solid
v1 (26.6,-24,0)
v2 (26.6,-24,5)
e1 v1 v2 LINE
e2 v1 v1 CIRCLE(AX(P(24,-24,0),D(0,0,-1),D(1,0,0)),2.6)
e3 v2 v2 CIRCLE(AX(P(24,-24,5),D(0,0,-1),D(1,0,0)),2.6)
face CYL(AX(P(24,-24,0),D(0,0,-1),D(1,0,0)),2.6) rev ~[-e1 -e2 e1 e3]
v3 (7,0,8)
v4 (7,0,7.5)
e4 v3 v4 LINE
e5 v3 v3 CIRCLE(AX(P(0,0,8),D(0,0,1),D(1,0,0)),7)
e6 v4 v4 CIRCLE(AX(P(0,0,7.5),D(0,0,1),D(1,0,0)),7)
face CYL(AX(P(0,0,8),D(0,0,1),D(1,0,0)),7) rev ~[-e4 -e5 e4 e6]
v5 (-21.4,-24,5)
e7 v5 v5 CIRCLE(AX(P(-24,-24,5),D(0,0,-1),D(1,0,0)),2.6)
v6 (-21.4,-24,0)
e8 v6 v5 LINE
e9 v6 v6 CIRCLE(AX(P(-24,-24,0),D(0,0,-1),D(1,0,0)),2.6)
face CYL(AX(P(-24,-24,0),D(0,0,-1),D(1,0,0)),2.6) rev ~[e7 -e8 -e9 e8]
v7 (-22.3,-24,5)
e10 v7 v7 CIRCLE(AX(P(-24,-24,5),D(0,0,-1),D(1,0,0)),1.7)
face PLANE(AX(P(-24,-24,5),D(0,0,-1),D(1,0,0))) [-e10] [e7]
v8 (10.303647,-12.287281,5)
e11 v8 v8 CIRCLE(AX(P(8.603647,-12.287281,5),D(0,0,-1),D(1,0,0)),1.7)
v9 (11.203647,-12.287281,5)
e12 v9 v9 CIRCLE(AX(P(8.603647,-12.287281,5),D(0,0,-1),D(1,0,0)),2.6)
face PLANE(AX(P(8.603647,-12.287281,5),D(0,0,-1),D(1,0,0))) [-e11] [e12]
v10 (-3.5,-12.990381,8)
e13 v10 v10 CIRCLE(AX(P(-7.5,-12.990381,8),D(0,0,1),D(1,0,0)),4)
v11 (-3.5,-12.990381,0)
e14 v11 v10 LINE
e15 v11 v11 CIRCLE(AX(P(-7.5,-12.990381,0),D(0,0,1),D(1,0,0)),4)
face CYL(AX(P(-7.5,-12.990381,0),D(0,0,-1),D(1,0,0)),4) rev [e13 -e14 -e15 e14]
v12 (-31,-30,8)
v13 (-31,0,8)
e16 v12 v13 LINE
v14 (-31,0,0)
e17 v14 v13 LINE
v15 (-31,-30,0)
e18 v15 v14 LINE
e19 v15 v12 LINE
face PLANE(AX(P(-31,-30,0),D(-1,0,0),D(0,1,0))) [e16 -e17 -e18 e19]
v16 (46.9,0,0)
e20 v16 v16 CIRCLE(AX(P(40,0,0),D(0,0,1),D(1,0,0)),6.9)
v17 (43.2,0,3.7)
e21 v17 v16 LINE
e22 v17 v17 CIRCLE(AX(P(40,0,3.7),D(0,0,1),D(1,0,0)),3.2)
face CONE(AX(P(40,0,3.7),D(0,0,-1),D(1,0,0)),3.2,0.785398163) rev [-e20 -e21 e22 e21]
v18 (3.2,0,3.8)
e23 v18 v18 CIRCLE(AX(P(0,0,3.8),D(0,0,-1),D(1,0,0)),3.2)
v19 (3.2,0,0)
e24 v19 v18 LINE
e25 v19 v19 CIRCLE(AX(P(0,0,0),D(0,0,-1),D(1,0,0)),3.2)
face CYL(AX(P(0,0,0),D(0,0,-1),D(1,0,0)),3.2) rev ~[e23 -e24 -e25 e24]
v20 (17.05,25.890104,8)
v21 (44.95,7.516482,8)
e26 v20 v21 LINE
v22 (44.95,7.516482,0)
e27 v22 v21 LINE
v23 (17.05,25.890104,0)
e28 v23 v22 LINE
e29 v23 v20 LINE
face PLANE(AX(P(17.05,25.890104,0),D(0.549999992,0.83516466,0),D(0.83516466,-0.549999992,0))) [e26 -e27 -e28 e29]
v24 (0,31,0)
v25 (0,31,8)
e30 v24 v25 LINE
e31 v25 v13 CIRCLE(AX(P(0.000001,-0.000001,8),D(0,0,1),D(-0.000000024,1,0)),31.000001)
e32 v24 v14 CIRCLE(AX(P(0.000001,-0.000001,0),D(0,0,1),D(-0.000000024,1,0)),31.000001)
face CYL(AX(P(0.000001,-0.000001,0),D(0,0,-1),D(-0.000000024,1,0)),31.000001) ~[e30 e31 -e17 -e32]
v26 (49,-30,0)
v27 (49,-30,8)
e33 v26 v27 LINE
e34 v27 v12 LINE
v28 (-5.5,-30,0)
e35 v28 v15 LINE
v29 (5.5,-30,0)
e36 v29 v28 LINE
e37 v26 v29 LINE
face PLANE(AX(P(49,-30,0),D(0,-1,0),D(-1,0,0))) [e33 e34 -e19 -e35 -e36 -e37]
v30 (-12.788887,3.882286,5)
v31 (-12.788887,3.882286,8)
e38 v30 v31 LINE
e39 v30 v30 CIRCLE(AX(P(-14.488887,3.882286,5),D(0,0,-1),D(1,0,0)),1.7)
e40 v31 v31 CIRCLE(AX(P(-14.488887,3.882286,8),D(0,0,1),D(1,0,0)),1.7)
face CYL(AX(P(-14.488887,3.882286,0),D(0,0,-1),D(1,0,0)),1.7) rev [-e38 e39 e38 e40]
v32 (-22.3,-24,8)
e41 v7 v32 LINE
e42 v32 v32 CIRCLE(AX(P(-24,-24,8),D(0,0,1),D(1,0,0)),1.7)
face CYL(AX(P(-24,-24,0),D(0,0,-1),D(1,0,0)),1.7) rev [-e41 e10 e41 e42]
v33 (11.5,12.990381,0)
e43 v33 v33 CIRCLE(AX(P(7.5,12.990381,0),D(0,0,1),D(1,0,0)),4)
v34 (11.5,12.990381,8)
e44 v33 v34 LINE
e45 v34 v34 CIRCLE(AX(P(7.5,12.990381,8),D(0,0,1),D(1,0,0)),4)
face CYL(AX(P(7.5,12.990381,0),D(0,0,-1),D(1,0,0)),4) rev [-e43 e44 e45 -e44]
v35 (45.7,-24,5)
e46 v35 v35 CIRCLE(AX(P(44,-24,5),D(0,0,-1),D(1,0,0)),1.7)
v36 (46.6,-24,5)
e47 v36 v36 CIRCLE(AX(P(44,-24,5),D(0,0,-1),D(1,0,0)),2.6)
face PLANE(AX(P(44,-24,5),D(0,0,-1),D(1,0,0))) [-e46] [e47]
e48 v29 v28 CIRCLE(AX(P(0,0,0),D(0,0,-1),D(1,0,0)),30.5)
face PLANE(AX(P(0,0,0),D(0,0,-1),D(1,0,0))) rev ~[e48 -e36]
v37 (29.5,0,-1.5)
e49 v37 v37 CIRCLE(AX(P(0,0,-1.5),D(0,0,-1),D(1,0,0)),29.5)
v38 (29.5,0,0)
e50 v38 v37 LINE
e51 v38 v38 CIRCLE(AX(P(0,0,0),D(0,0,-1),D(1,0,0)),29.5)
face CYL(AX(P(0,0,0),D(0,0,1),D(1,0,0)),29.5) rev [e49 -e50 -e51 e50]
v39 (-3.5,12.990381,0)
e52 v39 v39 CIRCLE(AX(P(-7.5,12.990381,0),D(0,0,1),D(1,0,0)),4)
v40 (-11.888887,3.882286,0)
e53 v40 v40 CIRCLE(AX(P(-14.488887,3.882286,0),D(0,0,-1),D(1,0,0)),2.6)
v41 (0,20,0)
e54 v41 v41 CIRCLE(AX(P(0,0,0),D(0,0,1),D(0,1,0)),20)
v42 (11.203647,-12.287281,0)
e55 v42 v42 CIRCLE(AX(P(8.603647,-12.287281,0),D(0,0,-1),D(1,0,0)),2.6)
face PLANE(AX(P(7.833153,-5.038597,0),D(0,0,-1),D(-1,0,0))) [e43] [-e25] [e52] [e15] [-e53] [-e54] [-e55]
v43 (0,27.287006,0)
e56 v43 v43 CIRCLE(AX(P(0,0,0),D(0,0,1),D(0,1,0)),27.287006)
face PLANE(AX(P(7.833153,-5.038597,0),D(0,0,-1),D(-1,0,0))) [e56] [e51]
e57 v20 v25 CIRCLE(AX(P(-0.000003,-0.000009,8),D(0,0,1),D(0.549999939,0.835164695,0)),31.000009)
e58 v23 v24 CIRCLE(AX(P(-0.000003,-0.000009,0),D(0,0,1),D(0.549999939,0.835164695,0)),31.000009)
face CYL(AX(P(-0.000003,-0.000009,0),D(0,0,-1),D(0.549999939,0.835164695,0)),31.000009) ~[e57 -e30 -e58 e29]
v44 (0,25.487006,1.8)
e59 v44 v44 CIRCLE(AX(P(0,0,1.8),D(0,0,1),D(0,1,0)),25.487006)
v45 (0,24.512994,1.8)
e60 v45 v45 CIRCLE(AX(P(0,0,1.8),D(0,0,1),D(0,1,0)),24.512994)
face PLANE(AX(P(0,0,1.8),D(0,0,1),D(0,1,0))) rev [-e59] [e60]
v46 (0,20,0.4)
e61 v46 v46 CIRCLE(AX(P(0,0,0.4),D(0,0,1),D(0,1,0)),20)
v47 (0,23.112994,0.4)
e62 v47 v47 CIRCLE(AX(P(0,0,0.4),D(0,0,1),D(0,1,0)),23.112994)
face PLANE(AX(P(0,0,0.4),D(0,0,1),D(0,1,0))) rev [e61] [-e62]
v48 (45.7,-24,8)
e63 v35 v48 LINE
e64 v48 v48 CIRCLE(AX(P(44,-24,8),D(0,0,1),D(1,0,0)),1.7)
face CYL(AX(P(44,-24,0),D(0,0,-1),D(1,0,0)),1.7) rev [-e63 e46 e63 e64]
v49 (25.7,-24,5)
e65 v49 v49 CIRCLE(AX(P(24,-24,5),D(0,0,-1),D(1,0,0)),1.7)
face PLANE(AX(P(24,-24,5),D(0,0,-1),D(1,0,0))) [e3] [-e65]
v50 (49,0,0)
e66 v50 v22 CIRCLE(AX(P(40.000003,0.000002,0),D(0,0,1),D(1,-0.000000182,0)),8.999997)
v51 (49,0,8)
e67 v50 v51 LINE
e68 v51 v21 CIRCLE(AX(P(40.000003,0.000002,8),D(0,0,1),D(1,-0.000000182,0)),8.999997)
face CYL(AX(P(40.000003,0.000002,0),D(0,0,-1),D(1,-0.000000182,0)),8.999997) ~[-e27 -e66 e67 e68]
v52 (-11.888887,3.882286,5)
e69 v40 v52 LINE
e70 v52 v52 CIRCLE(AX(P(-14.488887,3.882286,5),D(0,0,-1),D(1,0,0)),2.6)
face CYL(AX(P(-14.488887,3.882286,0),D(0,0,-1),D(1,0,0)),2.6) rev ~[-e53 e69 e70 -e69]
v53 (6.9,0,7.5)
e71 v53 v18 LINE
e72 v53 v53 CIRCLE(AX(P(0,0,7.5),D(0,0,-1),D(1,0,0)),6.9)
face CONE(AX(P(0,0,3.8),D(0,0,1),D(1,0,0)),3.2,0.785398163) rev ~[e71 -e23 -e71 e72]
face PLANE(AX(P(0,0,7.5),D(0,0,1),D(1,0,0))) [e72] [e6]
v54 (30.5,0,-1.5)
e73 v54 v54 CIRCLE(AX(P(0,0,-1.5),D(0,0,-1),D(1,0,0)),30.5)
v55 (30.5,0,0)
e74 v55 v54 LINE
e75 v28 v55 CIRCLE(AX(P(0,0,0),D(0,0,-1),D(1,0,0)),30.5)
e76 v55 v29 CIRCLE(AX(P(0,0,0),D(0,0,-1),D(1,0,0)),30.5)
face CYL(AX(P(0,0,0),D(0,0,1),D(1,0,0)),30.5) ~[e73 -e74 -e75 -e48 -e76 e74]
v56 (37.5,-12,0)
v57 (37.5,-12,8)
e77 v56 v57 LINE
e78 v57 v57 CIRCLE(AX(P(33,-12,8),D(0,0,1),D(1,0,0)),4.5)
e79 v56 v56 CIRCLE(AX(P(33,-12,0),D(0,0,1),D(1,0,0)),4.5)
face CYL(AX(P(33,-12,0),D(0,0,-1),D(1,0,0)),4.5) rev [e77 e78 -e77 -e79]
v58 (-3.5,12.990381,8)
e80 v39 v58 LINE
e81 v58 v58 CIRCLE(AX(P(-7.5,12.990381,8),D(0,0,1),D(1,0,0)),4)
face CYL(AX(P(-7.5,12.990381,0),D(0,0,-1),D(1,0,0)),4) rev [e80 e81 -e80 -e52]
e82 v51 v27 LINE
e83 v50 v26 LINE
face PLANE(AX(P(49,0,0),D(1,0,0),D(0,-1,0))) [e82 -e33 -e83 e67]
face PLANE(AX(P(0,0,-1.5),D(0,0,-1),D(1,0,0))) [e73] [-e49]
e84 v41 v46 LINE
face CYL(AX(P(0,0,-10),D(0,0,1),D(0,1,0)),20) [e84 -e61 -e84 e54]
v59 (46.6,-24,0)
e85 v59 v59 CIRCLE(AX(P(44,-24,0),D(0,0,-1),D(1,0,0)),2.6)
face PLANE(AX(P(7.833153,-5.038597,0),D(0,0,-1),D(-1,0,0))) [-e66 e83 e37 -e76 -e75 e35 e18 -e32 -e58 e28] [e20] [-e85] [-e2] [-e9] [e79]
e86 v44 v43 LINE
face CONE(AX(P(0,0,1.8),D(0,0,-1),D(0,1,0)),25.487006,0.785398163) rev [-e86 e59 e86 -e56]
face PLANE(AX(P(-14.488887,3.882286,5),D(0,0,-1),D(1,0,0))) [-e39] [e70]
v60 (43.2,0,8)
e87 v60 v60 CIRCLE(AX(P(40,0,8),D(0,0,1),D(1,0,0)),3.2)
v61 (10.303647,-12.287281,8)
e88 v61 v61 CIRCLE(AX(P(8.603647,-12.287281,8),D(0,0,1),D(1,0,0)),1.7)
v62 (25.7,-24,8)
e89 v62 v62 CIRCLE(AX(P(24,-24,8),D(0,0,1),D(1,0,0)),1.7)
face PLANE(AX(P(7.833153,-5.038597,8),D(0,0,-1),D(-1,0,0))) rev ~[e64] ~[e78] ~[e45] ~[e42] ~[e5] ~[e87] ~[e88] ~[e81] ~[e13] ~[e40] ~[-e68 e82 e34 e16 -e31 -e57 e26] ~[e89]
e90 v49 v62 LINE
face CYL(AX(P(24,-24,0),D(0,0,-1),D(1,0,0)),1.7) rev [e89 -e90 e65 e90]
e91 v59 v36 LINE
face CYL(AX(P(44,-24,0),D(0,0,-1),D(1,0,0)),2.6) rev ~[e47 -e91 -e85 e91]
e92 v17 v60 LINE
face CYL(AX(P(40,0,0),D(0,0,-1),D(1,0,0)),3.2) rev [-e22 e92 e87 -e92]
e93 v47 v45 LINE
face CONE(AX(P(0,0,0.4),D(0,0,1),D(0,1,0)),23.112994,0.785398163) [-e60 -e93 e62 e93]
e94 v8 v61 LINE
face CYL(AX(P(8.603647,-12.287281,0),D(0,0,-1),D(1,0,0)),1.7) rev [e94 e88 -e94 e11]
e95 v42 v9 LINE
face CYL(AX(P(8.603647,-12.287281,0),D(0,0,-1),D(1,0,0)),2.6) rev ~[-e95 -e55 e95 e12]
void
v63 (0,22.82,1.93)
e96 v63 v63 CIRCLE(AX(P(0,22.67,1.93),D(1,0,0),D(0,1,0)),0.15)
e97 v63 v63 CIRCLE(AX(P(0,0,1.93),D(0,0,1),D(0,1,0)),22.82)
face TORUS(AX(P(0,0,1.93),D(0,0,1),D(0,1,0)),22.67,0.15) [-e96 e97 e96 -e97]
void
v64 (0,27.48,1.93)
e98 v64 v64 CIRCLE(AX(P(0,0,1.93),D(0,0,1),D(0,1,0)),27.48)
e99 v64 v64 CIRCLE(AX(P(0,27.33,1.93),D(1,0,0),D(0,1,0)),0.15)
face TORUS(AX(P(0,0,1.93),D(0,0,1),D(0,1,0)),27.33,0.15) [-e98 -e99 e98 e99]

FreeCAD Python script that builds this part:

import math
import FreeCAD as App
import Part
import Sketcher

V = App.Vector
Q = App.Units.Quantity


def edges_at(feature, points):
    """Names of the edges that pass closest to the given points."""
    edges = feature.Shape.Edges
    near = lambda p: min(range(len(edges)), key=lambda i: edges[i].distToShape(Part.Vertex(*p))[0])
    return sorted({f"Edge{near(p) + 1}" for p in points})

doc = App.newDocument("Part")
body = doc.addObject("PartDesign::Body", "Body")

sketch1 = body.newObject("Sketcher::SketchObject", "Sketch")
sketch1.AttachmentSupport = (doc.getObject("XY_Plane"), [""])
sketch1.MapMode = "FlatFace"
sketch1.addGeometry(Part.LineSegment(V(-31, -30, 0), V(49, -30, 0)), False)
sketch1.addGeometry(Part.LineSegment(V(49, -30, 0), V(49, 0, 0)), False)
sketch1.addGeometry(Part.ArcOfCircle(Part.Circle(V(40, 0, 0), V(0, 0, 1), 9), math.radians(0), math.radians(57)), False)
sketch1.addGeometry(Part.LineSegment(V(45, 7.5, 0), V(17.1, 25.9, 0)), False)
sketch1.addGeometry(Part.ArcOfCircle(Part.Circle(V(0, 0, 0), V(0, 0, 1), 31), math.radians(57), math.radians(90)), False)
sketch1.addGeometry(Part.ArcOfCircle(Part.Circle(V(0, 0, 0), V(0, 0, 1), 31), math.radians(90), math.radians(180)), False)
sketch1.addGeometry(Part.LineSegment(V(-31, 0, 0), V(-31, -30, 0)), False)
sketch1.addGeometry(Part.Circle(V(44, -24, 0), V(0, 0, 1), 1.7), False)
sketch1.addGeometry(Part.Circle(V(24, -24, 0), V(0, 0, 1), 1.7), False)
sketch1.addGeometry(Part.Circle(V(33, -12, 0), V(0, 0, 1), 4.5), False)
sketch1.addGeometry(Part.Circle(V(-24, -24, 0), V(0, 0, 1), 1.7), False)
sketch1.addGeometry(Part.Circle(V(8.6, -12.3, 0), V(0, 0, 1), 1.7), False)
sketch1.addGeometry(Part.Circle(V(-7.5, -13, 0), V(0, 0, 1), 4), False)
sketch1.addGeometry(Part.Circle(V(40, 0, 0), V(0, 0, 1), 3.2), False)
sketch1.addGeometry(Part.LineSegment(V(0, -2, 0), V(0, 2, 0)), False)
sketch1.addGeometry(Part.LineSegment(V(0, 2, 0), V(1.5, 2, 0)), False)
sketch1.addGeometry(Part.LineSegment(V(1.5, 2, 0), V(1.5, -2, 0)), False)
sketch1.addGeometry(Part.LineSegment(V(1.5, -2, 0), V(0, -2, 0)), False)
sketch1.addGeometry(Part.Circle(V(-14.5, 3.9, 0), V(0, 0, 1), 1.7), False)
sketch1.addGeometry(Part.Circle(V(7.5, 13, 0), V(0, 0, 1), 4), False)
sketch1.addGeometry(Part.Circle(V(-7.5, 13, 0), V(0, 0, 1), 4), False)
sketch1.addConstraint(Sketcher.Constraint("Coincident", 0, 2, 1, 1))
sketch1.addConstraint(Sketcher.Constraint("Tangent", 1, 2, 2, 1))
sketch1.addConstraint(Sketcher.Constraint("Tangent", 2, 2, 3, 1))
sketch1.addConstraint(Sketcher.Constraint("Tangent", 3, 2, 4, 1))
sketch1.addConstraint(Sketcher.Constraint("Tangent", 4, 2, 5, 1))
sketch1.addConstraint(Sketcher.Constraint("Tangent", 5, 2, 6, 1))
sketch1.addConstraint(Sketcher.Constraint("Coincident", 6, 2, 0, 1))
sketch1.addConstraint(Sketcher.Constraint("Coincident", 14, 2, 15, 1))
sketch1.addConstraint(Sketcher.Constraint("Coincident", 15, 2, 16, 1))
sketch1.addConstraint(Sketcher.Constraint("Coincident", 16, 2, 17, 1))
sketch1.addConstraint(Sketcher.Constraint("Coincident", 17, 2, 14, 1))
sketch1.addConstraint(Sketcher.Constraint("Horizontal", 0))
sketch1.addConstraint(Sketcher.Constraint("Vertical", 1))
sketch1.addConstraint(Sketcher.Constraint("Vertical", 6))
sketch1.addConstraint(Sketcher.Constraint("Vertical", 14))
sketch1.addConstraint(Sketcher.Constraint("Horizontal", 15))
sketch1.addConstraint(Sketcher.Constraint("Vertical", 16))
sketch1.addConstraint(Sketcher.Constraint("Horizontal", 17))
sketch1.addConstraint(Sketcher.Constraint("Coincident", 4, 3, -1, 1))
sketch1.addConstraint(Sketcher.Constraint("Coincident", 13, 3, 2, 3))
sketch1.addConstraint(Sketcher.Constraint("Equal", 7, 8))
sketch1.addConstraint(Sketcher.Constraint("Equal", 8, 10))
sketch1.addConstraint(Sketcher.Constraint("Equal", 10, 11))
sketch1.addConstraint(Sketcher.Constraint("Equal", 11, 18))
sketch1.addConstraint(Sketcher.Constraint("Equal", 12, 19))
sketch1.addConstraint(Sketcher.Constraint("Equal", 19, 20))
sketch1.addConstraint(Sketcher.Constraint("Symmetric", 12, 3, 19, 3, -1, 1))
sketch1.addConstraint(Sketcher.Constraint("Symmetric", 14, 2, 17, 2, -1, 1))
sketch1.addConstraint(Sketcher.Constraint("Symmetric", 8, 3, 10, 3, -2))
sketch1.addConstraint(Sketcher.Constraint("Symmetric", 19, 3, 20, 3, -2))
sketch1.addConstraint(Sketcher.Constraint("PointOnObject", 2, 3, -1))
sketch1.addConstraint(Sketcher.Constraint("PointOnObject", 4, 2, -2))
sketch1.addConstraint(Sketcher.Constraint("PointOnObject", 5, 2, -1))
sketch1.addConstraint(Sketcher.Constraint("Horizontal", 7, 3, 8, 3))
sketch1.addConstraint(Sketcher.Constraint("Diameter", 9, 9.0))
sketch1.addConstraint(Sketcher.Constraint("Diameter", 12, 8.0))
sketch1.addConstraint(Sketcher.Constraint("Radius", 5, 31.000001))
sketch1.addConstraint(Sketcher.Constraint("Diameter", 7, 3.4))
sketch1.addConstraint(Sketcher.Constraint("Diameter", 13, 6.4))
sketch1.addConstraint(Sketcher.Constraint("DistanceX", 0, 1, 0, 2, 80.0))
sketch1.addConstraint(Sketcher.Constraint("DistanceY", 1, 1, 1, 2, 30.0))
sketch1.addConstraint(Sketcher.Constraint("DistanceY", 14, 1, 14, 2, 4.0))
sketch1.addConstraint(Sketcher.Constraint("DistanceX", 15, 1, 15, 2, 1.5))
sketch1.addConstraint(Sketcher.Constraint("DistanceX", -1, 1, 7, 3, 44.0))
sketch1.addConstraint(Sketcher.Constraint("DistanceY", 7, 3, -1, 1, 24.0))
sketch1.addConstraint(Sketcher.Constraint("DistanceX", -1, 1, 8, 3, 24.0))
sketch1.addConstraint(Sketcher.Constraint("DistanceX", -1, 1, 9, 3, 33.0))
sketch1.addConstraint(Sketcher.Constraint("DistanceY", 9, 3, -1, 1, 12.0))
sketch1.addConstraint(Sketcher.Constraint("DistanceX", -1, 1, 13, 3, 40.0))
sketch1.addConstraint(Sketcher.Constraint("DistanceX", 12, 3, 19, 3, 15.0))
sketch1.addConstraint(Sketcher.Constraint("DistanceY", 12, 3, 11, 3, 0.7031))
sketch1.addConstraint(Sketcher.Constraint("DistanceY", 11, 3, -1, 1, 12.287281))
sketch1.addConstraint(Sketcher.Constraint("DistanceX", 4, 3, 11, 3, 8.60365))
sketch1.addConstraint(Sketcher.Constraint("DistanceX", 18, 3, -1, 1, 14.488887))
sketch1.addConstraint(Sketcher.Constraint("DistanceY", -1, 1, 18, 3, 3.882286))
pad1 = body.newObject("PartDesign::Pad", "Pad")
pad1.Profile = sketch1
pad1.Length = 8

sketch2 = body.newObject("Sketcher::SketchObject", "Sketch001")
sketch2.AttachmentSupport = (doc.getObject("YZ_Plane"), [""])
sketch2.MapMode = "FlatFace"
sketch2.addGeometry(Part.LineSegment(V(24.5, 1.8, 0), V(23.1, 0.4, 0)), False)
sketch2.addGeometry(Part.LineSegment(V(23.1, 0.4, 0), V(20, 0.4, 0)), False)
sketch2.addGeometry(Part.LineSegment(V(20, 0.4, 0), V(20, -10, 0)), False)
sketch2.addGeometry(Part.LineSegment(V(20, -10, 0), V(27.3, -10, 0)), False)
sketch2.addGeometry(Part.LineSegment(V(27.3, -10, 0), V(27.3, 0, 0)), False)
sketch2.addGeometry(Part.LineSegment(V(27.3, 0, 0), V(25.5, 1.8, 0)), False)
sketch2.addGeometry(Part.LineSegment(V(25.5, 1.8, 0), V(24.5, 1.8, 0)), False)
sketch2.addConstraint(Sketcher.Constraint("Coincident", 0, 2, 1, 1))
sketch2.addConstraint(Sketcher.Constraint("Coincident", 1, 2, 2, 1))
sketch2.addConstraint(Sketcher.Constraint("Coincident", 2, 2, 3, 1))
sketch2.addConstraint(Sketcher.Constraint("Coincident", 3, 2, 4, 1))
sketch2.addConstraint(Sketcher.Constraint("Coincident", 4, 2, 5, 1))
sketch2.addConstraint(Sketcher.Constraint("Coincident", 5, 2, 6, 1))
sketch2.addConstraint(Sketcher.Constraint("Coincident", 6, 2, 0, 1))
sketch2.addConstraint(Sketcher.Constraint("Horizontal", 1))
sketch2.addConstraint(Sketcher.Constraint("Vertical", 2))
sketch2.addConstraint(Sketcher.Constraint("Horizontal", 3))
sketch2.addConstraint(Sketcher.Constraint("Vertical", 4))
sketch2.addConstraint(Sketcher.Constraint("Horizontal", 6))
sketch2.addConstraint(Sketcher.Constraint("PointOnObject", 4, 2, -1))
sketch2.addConstraint(Sketcher.Constraint("Perpendicular", 0, 5))
sketch2.addConstraint(Sketcher.Constraint("DistanceY", 4, 1, 4, 2, 10.0))
sketch2.addConstraint(Sketcher.Constraint("Angle", 0, Q("-135 deg")))
sketch2.addConstraint(Sketcher.Constraint("DistanceY", 2, 2, 2, 1, 10.4))
sketch2.addConstraint(Sketcher.Constraint("DistanceX", -1, 1, 1, 2, 20.0))
sketch2.addConstraint(Sketcher.Constraint("DistanceY", -1, 1, 5, 2, 1.8))
sketch2.addConstraint(Sketcher.Constraint("DistanceX", 1, 2, 1, 1, 3.112994))
sketch2.addConstraint(Sketcher.Constraint("DistanceX", 3, 1, 3, 2, 7.287006))
groove = body.newObject("PartDesign::Groove", "Groove")
groove.Profile = sketch2
groove.ReferenceAxis = (sketch2, ["V_Axis"])
groove.Angle = 360

sketch3 = body.newObject("Sketcher::SketchObject", "Sketch002")
sketch3.AttachmentSupport = (doc.getObject("YZ_Plane"), [""])
sketch3.MapMode = "FlatFace"
sketch3.addGeometry(Part.Circle(V(22.67, 1.93, 0), V(0, 0, 1), 0.15), False)
sketch3.addConstraint(Sketcher.Constraint("Diameter", 0, 0.3))
sketch3.addConstraint(Sketcher.Constraint("DistanceX", -1, 1, 0, 3, 22.67))
sketch3.addConstraint(Sketcher.Constraint("DistanceY", -1, 1, 0, 3, 1.93))
groove2 = body.newObject("PartDesign::Groove", "Groove001")
groove2.Profile = sketch3
groove2.ReferenceAxis = (sketch3, ["V_Axis"])
groove2.Angle = 360

sketch4 = body.newObject("Sketcher::SketchObject", "Sketch003")
sketch4.AttachmentSupport = (doc.getObject("YZ_Plane"), [""])
sketch4.MapMode = "FlatFace"
sketch4.addGeometry(Part.Circle(V(27.33, 1.93, 0), V(0, 0, 1), 0.15), False)
sketch4.addConstraint(Sketcher.Constraint("Diameter", 0, 0.3))
sketch4.addConstraint(Sketcher.Constraint("DistanceX", -1, 1, 0, 3, 27.33))
sketch4.addConstraint(Sketcher.Constraint("DistanceY", -1, 1, 0, 3, 1.93))
groove3 = body.newObject("PartDesign::Groove", "Groove002")
groove3.Profile = sketch4
groove3.ReferenceAxis = (sketch4, ["V_Axis"])
groove3.Angle = 360

sketch5 = body.newObject("Sketcher::SketchObject", "Sketch004")
sketch5.AttachmentSupport = (doc.getObject("XY_Plane"), [""])
sketch5.MapMode = "FlatFace"
sketch5.addGeometry(Part.Circle(V(0, 0, 0), V(0, 0, 1), 3.2), False)
sketch5.addConstraint(Sketcher.Constraint("Coincident", 0, 3, -1, 1))
sketch5.addConstraint(Sketcher.Constraint("Diameter", 0, 6.4))
pocket1 = body.newObject("PartDesign::Pocket", "Pocket")
pocket1.Profile = sketch5
pocket1.Type = "ThroughAll"
pocket1.Midplane = True

sketch6 = body.newObject("Sketcher::SketchObject", "Sketch005")
sketch6.AttachmentSupport = (doc.getObject("XY_Plane"), [""])
sketch6.MapMode = "FlatFace"
sketch6.AttachmentOffset = App.Placement(V(0, 0, 8), App.Rotation())
sketch6.addGeometry(Part.Circle(V(0, 0, 0), V(0, 0, 1), 7), False)
sketch6.addConstraint(Sketcher.Constraint("Coincident", 0, 3, -1, 1))
sketch6.addConstraint(Sketcher.Constraint("Diameter", 0, 14.0))
pocket2 = body.newObject("PartDesign::Pocket", "Pocket001")
pocket2.Profile = sketch6
pocket2.Length = 0.5

sketch7 = body.newObject("Sketcher::SketchObject", "Sketch006")
sketch7.AttachmentSupport = (doc.getObject("XY_Plane"), [""])
sketch7.MapMode = "FlatFace"
sketch7.addGeometry(Part.Circle(V(-24, -24, 0), V(0, 0, 1), 2.6), False)
sketch7.addGeometry(Part.Circle(V(24, -24, 0), V(0, 0, 1), 2.6), False)
sketch7.addGeometry(Part.Circle(V(44, -24, 0), V(0, 0, 1), 2.6), False)
sketch7.addGeometry(Part.Circle(V(-14.5, 3.9, 0), V(0, 0, 1), 2.6), False)
sketch7.addGeometry(Part.Circle(V(8.6, -12.3, 0), V(0, 0, 1), 2.6), False)
sketch7.addConstraint(Sketcher.Constraint("Equal", 0, 1))
sketch7.addConstraint(Sketcher.Constraint("Equal", 1, 2))
sketch7.addConstraint(Sketcher.Constraint("Equal", 2, 3))
sketch7.addConstraint(Sketcher.Constraint("Equal", 3, 4))
sketch7.addConstraint(Sketcher.Constraint("Symmetric", 0, 3, 1, 3, -2))
sketch7.addConstraint(Sketcher.Constraint("Horizontal", 1, 3, 2, 3))
sketch7.addConstraint(Sketcher.Constraint("Diameter", 0, 5.2))
sketch7.addConstraint(Sketcher.Constraint("DistanceX", 0, 3, -1, 1, 24.0))
sketch7.addConstraint(Sketcher.Constraint("DistanceY", 0, 3, -1, 1, 24.0))
sketch7.addConstraint(Sketcher.Constraint("DistanceX", -1, 1, 2, 3, 44.0))
sketch7.addConstraint(Sketcher.Constraint("DistanceY", 4, 3, -1, 1, 12.287281))
sketch7.addConstraint(Sketcher.Constraint("DistanceX", 3, 3, -1, 1, 14.488887))
sketch7.addConstraint(Sketcher.Constraint("DistanceY", -1, 1, 3, 3, 3.882286))
sketch7.addConstraint(Sketcher.Constraint("DistanceX", -1, 1, 4, 3, 8.603647))
pocket3 = body.newObject("PartDesign::Pocket", "Pocket002")
pocket3.Profile = sketch7
pocket3.Length = 5
pocket3.Reversed = True

sketch8 = body.newObject("Sketcher::SketchObject", "Sketch007")
sketch8.AttachmentSupport = (doc.getObject("XY_Plane"), [""])
sketch8.MapMode = "FlatFace"
sketch8.addGeometry(Part.Circle(V(0, 0, 0), V(0, 0, 1), 30), False)
sketch8.addGeometry(Part.Circle(V(0, 0, 0), V(0, 0, 1), 30), False)
sketch8.addConstraint(Sketcher.Constraint("Coincident", 0, 3, -1, 1))
sketch8.addConstraint(Sketcher.Constraint("Coincident", 1, 3, -1, 1))
sketch8.addConstraint(Sketcher.Constraint("Diameter", 0, 61.0))
sketch8.addConstraint(Sketcher.Constraint("Diameter", 1, 59.0))
pad2 = body.newObject("PartDesign::Pad", "Pad001")
pad2.Profile = sketch8
pad2.Length = 1.5
pad2.Reversed = True
doc.recompute()

chamfer = body.newObject("PartDesign::Chamfer", "Chamfer")
chamfer.Base = (pad2, edges_at(pad2, [(-3.2, 0, 7.5)]))
chamfer.Size = 3.7
doc.recompute()

chamfer2 = body.newObject("PartDesign::Chamfer", "Chamfer001")
chamfer2.Base = (chamfer, edges_at(chamfer, [(36.8, 0, 0)]))
chamfer2.Size = 3.7

doc.recompute()
